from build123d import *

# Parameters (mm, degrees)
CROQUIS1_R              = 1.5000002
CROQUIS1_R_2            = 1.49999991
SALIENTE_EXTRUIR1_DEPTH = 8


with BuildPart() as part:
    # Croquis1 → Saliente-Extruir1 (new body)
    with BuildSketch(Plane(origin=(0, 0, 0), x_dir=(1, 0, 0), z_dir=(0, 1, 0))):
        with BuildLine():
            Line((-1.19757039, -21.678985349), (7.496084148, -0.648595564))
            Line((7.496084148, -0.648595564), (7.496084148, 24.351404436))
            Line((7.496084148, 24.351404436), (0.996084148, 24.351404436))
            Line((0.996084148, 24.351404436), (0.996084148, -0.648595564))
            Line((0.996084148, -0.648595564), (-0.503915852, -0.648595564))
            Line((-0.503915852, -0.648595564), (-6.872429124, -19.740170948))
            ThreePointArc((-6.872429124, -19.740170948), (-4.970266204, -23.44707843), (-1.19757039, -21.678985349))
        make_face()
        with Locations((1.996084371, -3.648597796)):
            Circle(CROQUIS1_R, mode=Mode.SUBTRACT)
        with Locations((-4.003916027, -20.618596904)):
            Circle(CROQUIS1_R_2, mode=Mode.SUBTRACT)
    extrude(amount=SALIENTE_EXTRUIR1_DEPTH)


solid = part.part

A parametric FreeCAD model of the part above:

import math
import FreeCAD as App
import Part
import Sketcher
from FreeCAD import Vector
Q = App.Units.Quantity

doc = App.newDocument("Part")
body = doc.addObject("PartDesign::Body", "Body")

# Sketch on XZ plane
sketch1 = body.newObject("Sketcher::SketchObject", "Sketch")
sketch1.AttachmentSupport = (doc.getObject("XZ_Plane"), [""])
sketch1.MapMode = "FlatFace"
sketch1.addGeometry(Part.LineSegment(Vector(-1.2, 21.7, 0), Vector(7.5, 0.6, 0)), False)
sketch1.addGeometry(Part.LineSegment(Vector(7.5, 0.6, 0), Vector(7.5, -24.4, 0)), False)
sketch1.addGeometry(Part.LineSegment(Vector(7.5, -24.4, 0), Vector(1, -24.4, 0)), False)
sketch1.addGeometry(Part.LineSegment(Vector(1, -24.4, 0), Vector(1, 0.6, 0)), False)
sketch1.addGeometry(Part.LineSegment(Vector(1, 0.6, 0), Vector(-0.5, 0.6, 0)), False)
sketch1.addGeometry(Part.LineSegment(Vector(-0.5, 0.6, 0), Vector(-6.9, 19.7, 0)), False)
sketch1.addGeometry(Part.ArcOfCircle(Part.Circle(Vector(-4, 20.6, 0), Vector(0, 0, 1), 3), math.radians(21), math.radians(197)), False)
sketch1.addGeometry(Part.Circle(Vector(-4, 20.6, 0), Vector(0, 0, 1), 1.5), False)
sketch1.addGeometry(Part.Circle(Vector(2, 3.6, 0), Vector(0, 0, 1), 1.5), False)
sketch1.addConstraint(Sketcher.Constraint("Coincident", 0, 2, 1, 1))
sketch1.addConstraint(Sketcher.Constraint("Coincident", 1, 2, 2, 1))
sketch1.addConstraint(Sketcher.Constraint("Coincident", 2, 2, 3, 1))
sketch1.addConstraint(Sketcher.Constraint("Coincident", 3, 2, 4, 1))
sketch1.addConstraint(Sketcher.Constraint("Coincident", 4, 2, 5, 1))
sketch1.addConstraint(Sketcher.Constraint("Coincident", 5, 2, 6, 2))
sketch1.addConstraint(Sketcher.Constraint("Coincident", 6, 1, 0, 1))
sketch1.addConstraint(Sketcher.Constraint("Vertical", 1))
sketch1.addConstraint(Sketcher.Constraint("Horizontal", 2))
sketch1.addConstraint(Sketcher.Constraint("Vertical", 3))
sketch1.addConstraint(Sketcher.Constraint("Horizontal", 4))
sketch1.addConstraint(Sketcher.Constraint("Equal", 7, 8))
sketch1.addConstraint(Sketcher.Constraint("Horizontal", 0, 2, 3, 2))
sketch1.addConstraint(Sketcher.Constraint("Diameter", 7, Q("3 mm")))
sketch1.addConstraint(Sketcher.Constraint("DistanceY", 1, 2, 1, 1, Q("25 mm")))
sketch1.addConstraint(Sketcher.Constraint("DistanceX", 2, 2, 2, 1, Q("6.5 mm")))
sketch1.addConstraint(Sketcher.Constraint("DistanceX", 4, 2, 4, 1, Q("1.5 mm")))
sketch1.addConstraint(Sketcher.Constraint("DistanceX", 7, 3, 8, 3, Q("6 mm")))
sketch1.addConstraint(Sketcher.Constraint("DistanceX", 2, 2, 8, 3, Q("1 mm")))
sketch1.addConstraint(Sketcher.Constraint("DistanceY", 8, 3, 7, 3, Q("16.969999 mm")))
sketch1.addConstraint(Sketcher.Constraint("DistanceY", 0, 2, 7, 3, Q("19.970001 mm")))
sketch1.addConstraint(Sketcher.Constraint("Radius", 6, Q("3.000386 mm")))
sketch1.addConstraint(Sketcher.Constraint("Distance", 0, Q("22.75647 mm")))
sketch1.addConstraint(Sketcher.Constraint("Distance", 5, Q("20.12576 mm")))
sketch1.addConstraint(Sketcher.Constraint("DistanceX", 5, 2, -1, 1, Q("6.872429 mm")))
sketch1.addConstraint(Sketcher.Constraint("DistanceY", -1, 1, 5, 2, Q("19.740171 mm")))
sketch1.addConstraint(Sketcher.Constraint("DistanceX", 6, 1, -1, 1, Q("1.19757 mm")))
sketch1.addConstraint(Sketcher.Constraint("DistanceX", 7, 3, 6, 3, Q("0.00368 mm")))
pad1 = body.newObject("PartDesign::Pad", "Pad")
pad1.Profile = sketch1
pad1.Length = 8
pad1.Reversed = True

doc.recompute()
